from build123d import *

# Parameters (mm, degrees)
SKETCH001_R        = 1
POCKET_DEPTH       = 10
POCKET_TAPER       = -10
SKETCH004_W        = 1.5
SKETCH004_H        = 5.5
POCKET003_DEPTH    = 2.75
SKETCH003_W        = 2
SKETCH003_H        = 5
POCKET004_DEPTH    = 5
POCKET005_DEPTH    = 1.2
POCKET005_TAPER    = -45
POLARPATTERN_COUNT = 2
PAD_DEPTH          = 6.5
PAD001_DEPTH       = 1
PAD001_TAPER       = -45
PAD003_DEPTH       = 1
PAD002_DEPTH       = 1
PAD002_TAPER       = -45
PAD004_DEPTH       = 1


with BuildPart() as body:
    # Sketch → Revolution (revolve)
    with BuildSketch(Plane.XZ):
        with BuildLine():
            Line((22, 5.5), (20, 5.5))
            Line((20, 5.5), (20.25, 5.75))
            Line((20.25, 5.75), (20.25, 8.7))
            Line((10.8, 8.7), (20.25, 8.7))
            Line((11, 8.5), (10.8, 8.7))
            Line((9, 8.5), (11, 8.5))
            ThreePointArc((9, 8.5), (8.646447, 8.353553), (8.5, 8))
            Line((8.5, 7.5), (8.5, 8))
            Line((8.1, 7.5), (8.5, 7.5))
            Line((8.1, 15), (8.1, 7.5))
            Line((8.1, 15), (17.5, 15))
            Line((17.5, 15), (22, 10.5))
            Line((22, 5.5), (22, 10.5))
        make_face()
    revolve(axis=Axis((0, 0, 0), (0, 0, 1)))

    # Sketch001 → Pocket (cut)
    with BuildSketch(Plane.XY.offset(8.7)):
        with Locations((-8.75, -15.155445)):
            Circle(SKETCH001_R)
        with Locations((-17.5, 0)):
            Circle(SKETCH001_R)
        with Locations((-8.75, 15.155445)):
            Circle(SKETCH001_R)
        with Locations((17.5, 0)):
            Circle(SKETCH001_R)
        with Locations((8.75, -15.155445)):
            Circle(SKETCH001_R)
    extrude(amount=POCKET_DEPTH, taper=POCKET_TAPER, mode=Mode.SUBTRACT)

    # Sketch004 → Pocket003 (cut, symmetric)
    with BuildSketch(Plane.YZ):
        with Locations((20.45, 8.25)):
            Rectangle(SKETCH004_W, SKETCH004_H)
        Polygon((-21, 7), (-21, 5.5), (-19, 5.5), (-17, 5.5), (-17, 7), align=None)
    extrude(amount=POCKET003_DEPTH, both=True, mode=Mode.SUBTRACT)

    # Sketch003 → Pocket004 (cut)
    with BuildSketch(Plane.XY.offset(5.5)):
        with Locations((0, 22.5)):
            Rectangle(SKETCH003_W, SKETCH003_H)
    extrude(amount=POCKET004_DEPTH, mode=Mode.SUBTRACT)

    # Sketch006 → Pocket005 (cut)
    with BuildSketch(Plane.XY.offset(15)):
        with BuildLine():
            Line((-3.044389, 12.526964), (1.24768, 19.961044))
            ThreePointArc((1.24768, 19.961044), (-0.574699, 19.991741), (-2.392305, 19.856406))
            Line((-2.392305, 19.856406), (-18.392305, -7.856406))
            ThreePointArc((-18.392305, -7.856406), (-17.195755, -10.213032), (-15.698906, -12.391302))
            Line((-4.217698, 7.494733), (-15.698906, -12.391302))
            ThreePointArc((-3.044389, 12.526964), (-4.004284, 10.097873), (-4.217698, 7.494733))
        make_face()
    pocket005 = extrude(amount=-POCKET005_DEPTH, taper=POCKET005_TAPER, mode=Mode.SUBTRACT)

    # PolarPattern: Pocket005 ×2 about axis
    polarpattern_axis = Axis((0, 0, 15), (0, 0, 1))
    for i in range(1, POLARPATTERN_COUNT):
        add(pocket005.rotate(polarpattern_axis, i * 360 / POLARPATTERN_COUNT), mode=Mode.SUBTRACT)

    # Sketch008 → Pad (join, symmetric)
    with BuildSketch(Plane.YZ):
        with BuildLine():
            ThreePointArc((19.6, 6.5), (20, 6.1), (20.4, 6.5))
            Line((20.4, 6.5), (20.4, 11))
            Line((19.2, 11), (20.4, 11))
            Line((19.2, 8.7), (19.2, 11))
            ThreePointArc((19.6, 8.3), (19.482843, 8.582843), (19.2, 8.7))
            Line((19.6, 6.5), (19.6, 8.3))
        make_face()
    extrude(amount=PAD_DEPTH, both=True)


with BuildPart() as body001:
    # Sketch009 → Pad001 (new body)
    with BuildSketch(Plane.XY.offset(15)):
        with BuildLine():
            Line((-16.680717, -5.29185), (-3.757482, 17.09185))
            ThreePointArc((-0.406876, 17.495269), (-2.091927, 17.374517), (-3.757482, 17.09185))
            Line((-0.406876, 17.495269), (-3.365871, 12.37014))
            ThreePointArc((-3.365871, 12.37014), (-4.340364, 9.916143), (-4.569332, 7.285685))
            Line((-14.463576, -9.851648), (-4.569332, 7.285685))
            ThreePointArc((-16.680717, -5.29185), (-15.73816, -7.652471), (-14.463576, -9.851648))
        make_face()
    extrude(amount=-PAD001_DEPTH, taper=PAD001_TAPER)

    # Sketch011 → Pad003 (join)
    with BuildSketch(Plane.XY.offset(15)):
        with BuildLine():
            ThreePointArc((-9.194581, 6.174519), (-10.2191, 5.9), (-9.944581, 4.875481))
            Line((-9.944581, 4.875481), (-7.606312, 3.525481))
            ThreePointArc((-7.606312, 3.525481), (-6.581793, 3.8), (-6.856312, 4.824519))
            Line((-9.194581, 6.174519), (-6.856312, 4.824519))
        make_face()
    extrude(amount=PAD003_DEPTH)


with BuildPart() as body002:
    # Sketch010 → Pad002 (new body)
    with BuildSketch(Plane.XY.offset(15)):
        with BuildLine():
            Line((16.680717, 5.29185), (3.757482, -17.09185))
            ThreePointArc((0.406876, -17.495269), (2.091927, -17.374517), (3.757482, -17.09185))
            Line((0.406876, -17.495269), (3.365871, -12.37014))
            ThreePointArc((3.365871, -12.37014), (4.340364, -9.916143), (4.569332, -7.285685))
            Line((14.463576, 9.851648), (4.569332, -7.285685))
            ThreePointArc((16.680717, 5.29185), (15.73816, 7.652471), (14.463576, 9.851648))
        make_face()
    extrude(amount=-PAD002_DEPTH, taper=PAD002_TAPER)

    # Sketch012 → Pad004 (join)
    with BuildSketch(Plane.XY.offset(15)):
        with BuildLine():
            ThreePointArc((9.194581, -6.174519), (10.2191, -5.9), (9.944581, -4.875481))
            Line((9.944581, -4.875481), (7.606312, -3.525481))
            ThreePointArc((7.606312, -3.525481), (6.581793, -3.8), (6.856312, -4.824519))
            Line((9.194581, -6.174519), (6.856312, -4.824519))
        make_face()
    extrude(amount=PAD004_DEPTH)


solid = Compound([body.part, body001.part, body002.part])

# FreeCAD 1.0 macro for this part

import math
import FreeCAD as App
import Part
import Sketcher
from FreeCAD import Vector
Q = App.Units.Quantity


def add_polygon(sketch, points):
    """Adds a closed chain of lines whose ends are joined by coincident constraints."""
    first, n = sketch.GeometryCount, len(points)
    for a, b in zip(points, points[1:] + points[:1]):
        sketch.addGeometry(Part.LineSegment(App.Vector(*a, 0), App.Vector(*b, 0)), False)
    for i in range(n):
        sketch.addConstraint(Sketcher.Constraint("Coincident", first + i, 2, first + (i + 1) % n, 1))

doc = App.newDocument("Part")
body = doc.addObject("PartDesign::Body", "Body")

sketch1 = doc.addObject("Sketcher::SketchObject", "Sketch")
body.addObject(sketch1)
sketch1.AttachmentSupport = (doc.XZ_Plane, [""])
sketch1.MapMode = "FlatFace"
sketch1.addGeometry([
    Part.LineSegment(Vector(20, 5.5, 0), Vector(22, 5.5, 0)),
    Part.LineSegment(Vector(22, 5.5, 0), Vector(22, 10.5, 0)),
    Part.LineSegment(Vector(22, 10.5, 0), Vector(17.5, 15, 0)),
    Part.LineSegment(Vector(17.5, 15, 0), Vector(8.1, 15, 0)),
    Part.LineSegment(Vector(8.1, 15, 0), Vector(8.1, 7.5, 0)),
    Part.LineSegment(Vector(8.1, 7.5, 0), Vector(8.5, 7.5, 0)),
    Part.LineSegment(Vector(8.5, 7.5, 0), Vector(8.5, 8, 0)),
    Part.ArcOfCircle(Part.Circle(Vector(9, 8, 0), Vector(0, 0, 1), 0.5), math.radians(90), math.radians(180)),
    Part.LineSegment(Vector(9, 8.5, 0), Vector(11, 8.5, 0)),
    Part.LineSegment(Vector(11, 8.5, 0), Vector(10.8, 8.7, 0)),
    Part.LineSegment(Vector(10.8, 8.7, 0), Vector(20.25, 8.7, 0)),
    Part.LineSegment(Vector(20.25, 8.7, 0), Vector(20.25, 5.75, 0)),
    Part.LineSegment(Vector(20.25, 5.75, 0), Vector(20, 5.5, 0)),
], False)
sketch1.addConstraint([
    Sketcher.Constraint("Coincident", 0, 2, 1, 1),
    Sketcher.Constraint("Coincident", 1, 2, 2, 1),
    Sketcher.Constraint("Coincident", 2, 2, 3, 1),
    Sketcher.Constraint("Coincident", 3, 2, 4, 1),
    Sketcher.Constraint("Coincident", 4, 2, 5, 1),
    Sketcher.Constraint("Coincident", 5, 2, 6, 1),
    Sketcher.Constraint("Coincident", 6, 2, 7, 2),
    Sketcher.Constraint("Coincident", 7, 1, 8, 1),
    Sketcher.Constraint("Coincident", 8, 2, 9, 1),
    Sketcher.Constraint("Coincident", 9, 2, 10, 1),
    Sketcher.Constraint("Coincident", 10, 2, 11, 1),
    Sketcher.Constraint("Coincident", 11, 2, 12, 1),
    Sketcher.Constraint("Coincident", 12, 2, 0, 1),
    Sketcher.Constraint("Horizontal", 0),
    Sketcher.Constraint("Vertical", 1),
    Sketcher.Constraint("Horizontal", 3),
    Sketcher.Constraint("Vertical", 4),
    Sketcher.Constraint("Horizontal", 5),
    Sketcher.Constraint("Vertical", 6),
    Sketcher.Constraint("Horizontal", 8),
    Sketcher.Constraint("Horizontal", 10),
    Sketcher.Constraint("Vertical", 11),
    Sketcher.Constraint("Parallel", 2, 9),
    Sketcher.Constraint("Perpendicular", 9, 12),
    Sketcher.Constraint("Horizontal", 7, 3, 6, 2),
    Sketcher.Constraint("Equal", 0, 8),
    Sketcher.Constraint("Radius", 7, Q("0.500001 mm")),
    Sketcher.Constraint("DistanceX", 0, 1, 0, 2, Q("2 mm")),
    Sketcher.Constraint("DistanceY", 1, 1, 1, 2, Q("5 mm")),
    Sketcher.Constraint("Angle", 2, Q("135 deg")),
    Sketcher.Constraint("DistanceX", 3, 2, 3, 1, Q("9.4 mm")),
    Sketcher.Constraint("DistanceX", 5, 1, 5, 2, Q("0.4 mm")),
    Sketcher.Constraint("DistanceY", 4, 2, 4, 1, Q("7.5 mm")),
    Sketcher.Constraint("DistanceY", 6, 1, 6, 2, Q("0.5 mm")),
    Sketcher.Constraint("DistanceX", -1, 1, 7, 3, Q("9.000001 mm")),
    Sketcher.Constraint("DistanceY", -1, 1, 7, 3, Q("7.999999 mm")),
    Sketcher.Constraint("DistanceX", -1, 1, 0, 2, Q("22 mm")),
    Sketcher.Constraint("DistanceX", -1, 1, 7, 1, Q("9 mm")),
    Sketcher.Constraint("DistanceX", 10, 1, 10, 2, Q("9.45 mm")),
    Sketcher.Constraint("DistanceY", 11, 2, 11, 1, Q("2.95 mm")),
])
revolution = doc.addObject("PartDesign::Revolution", "Revolution")
body.addObject(revolution)
revolution.Profile = sketch1
revolution.ReferenceAxis = (sketch1, ["V_Axis"])
revolution.Angle = 360

sketch2 = doc.addObject("Sketcher::SketchObject", "Sketch001")
body.addObject(sketch2)
sketch2.AttachmentSupport = (doc.XY_Plane, [""])
sketch2.MapMode = "FlatFace"
sketch2.AttachmentOffset = App.Placement(Vector(0, 0, 8.7), App.Rotation())
sketch2.addGeometry([
    Part.Circle(Vector(-8.8, -15.2, 0), Vector(0, 0, 1), 1),
    Part.Circle(Vector(-17.5, 0, 0), Vector(0, 0, 1), 1),
    Part.Circle(Vector(-8.8, 15.2, 0), Vector(0, 0, 1), 1),
    Part.Circle(Vector(17.5, 0, 0), Vector(0, 0, 1), 1),
    Part.Circle(Vector(8.8, -15.2, 0), Vector(0, 0, 1), 1),
], False)
sketch2.addConstraint([
    Sketcher.Constraint("Equal", 0, 1),
    Sketcher.Constraint("Equal", 1, 2),
    Sketcher.Constraint("Equal", 2, 3),
    Sketcher.Constraint("Equal", 3, 4),
    Sketcher.Constraint("Symmetric", 1, 3, 3, 3, -1, 1),
    Sketcher.Constraint("Symmetric", 2, 3, 4, 3, -1, 1),
    Sketcher.Constraint("Symmetric", 0, 3, 4, 3, -2),
    Sketcher.Constraint("PointOnObject", 1, 3, -1),
    Sketcher.Constraint("Diameter", 0, Q("2 mm")),
    Sketcher.Constraint("DistanceX", 1, 3, 3, 3, Q("35 mm")),
    Sketcher.Constraint("DistanceX", 0, 3, 4, 3, Q("17.5 mm")),
    Sketcher.Constraint("DistanceY", 0, 3, 2, 3, Q("30.31089 mm")),
])
pocket1 = doc.addObject("PartDesign::Pocket", "Pocket")
body.addObject(pocket1)
pocket1.Profile = sketch2
pocket1.Length = 10
pocket1.Reversed = True
pocket1.TaperAngle = 10

sketch3 = doc.addObject("Sketcher::SketchObject", "Sketch002")
body.addObject(sketch3)
sketch3.AttachmentSupport = (doc.YZ_Plane, [""])
sketch3.MapMode = "FlatFace"
add_polygon(sketch3, [(19.7, 11), (19.7, 5.5), (21.2, 5.5), (21.2, 11)])
add_polygon(sketch3, [(-21, 7), (-21, 5.5), (-17, 5.5), (-17, 7)])
sketch3.addConstraint([
    Sketcher.Constraint("Vertical", 0),
    Sketcher.Constraint("Horizontal", 1),
    Sketcher.Constraint("Vertical", 2),
    Sketcher.Constraint("Horizontal", 3),
    Sketcher.Constraint("Vertical", 4),
    Sketcher.Constraint("Horizontal", 5),
    Sketcher.Constraint("Vertical", 6),
    Sketcher.Constraint("Horizontal", 7),
    Sketcher.Constraint("Horizontal", 1, 2, 4, 2),
    Sketcher.Constraint("Equal", 3, 4),
    Sketcher.Constraint("DistanceX", 5, 1, 5, 2, Q("4 mm")),
    Sketcher.Constraint("DistanceX", 1, 1, 1, 2, Q("1.5 mm")),
    Sketcher.Constraint("DistanceY", 0, 2, 0, 1, Q("5.5 mm")),
    Sketcher.Constraint("DistanceY", -1, 1, 2, 2, Q("11 mm")),
    Sketcher.Constraint("DistanceX", 4, 2, -1, 1, Q("21 mm")),
    Sketcher.Constraint("DistanceX", -1, 1, 0, 2, Q("19.7 mm")),
])
pocket2 = doc.addObject("PartDesign::Pocket", "Pocket001")
body.addObject(pocket2)
pocket2.Profile = sketch3
pocket2.Length = 5.5
pocket2.Midplane = True

sketch4 = doc.addObject("Sketcher::SketchObject", "Sketch003")
body.addObject(sketch4)
sketch4.AttachmentSupport = (doc.XY_Plane, [""])
sketch4.MapMode = "FlatFace"
sketch4.AttachmentOffset = App.Placement(Vector(0, 0, 5.5), App.Rotation())
add_polygon(sketch4, [(-1, 25), (-1, 20), (1, 20), (1, 25)])
sketch4.addConstraint([
    Sketcher.Constraint("Vertical", 0),
    Sketcher.Constraint("Horizontal", 1),
    Sketcher.Constraint("Vertical", 2),
    Sketcher.Constraint("Horizontal", 3),
    Sketcher.Constraint("DistanceX", 1, 1, 1, 2, Q("2 mm")),
    Sketcher.Constraint("DistanceY", 0, 2, 0, 1, Q("5 mm")),
    Sketcher.Constraint("DistanceX", 0, 2, -1, 1, Q("1 mm")),
    Sketcher.Constraint("DistanceY", -1, 1, 0, 2, Q("20 mm")),
])
pocket3 = doc.addObject("PartDesign::Pocket", "Pocket002")
body.addObject(pocket3)
pocket3.Profile = sketch4
pocket3.Length = 5
pocket3.Reversed = True

sketch5 = doc.addObject("Sketcher::SketchObject", "Sketch004")
body.addObject(sketch5)
sketch5.AttachmentSupport = (doc.XY_Plane, [""])
sketch5.MapMode = "FlatFace"
sketch5.AttachmentOffset = App.Placement(Vector(0, 0, 15), App.Rotation())
sketch5.addGeometry([
    Part.LineSegment(Vector(-3.044389, 12.526964, 0), Vector(1.24768, 19.961044, 0)),
    Part.ArcOfCircle(Part.Circle(Vector(-0.000001, 0.000027, 0), Vector(0, 0, 1), 19.999973), math.radians(86.423331), math.radians(96.869905)),
    Part.LineSegment(Vector(-2.392305, 19.856406, 0), Vector(-18.392305, -7.856406, 0)),
    Part.ArcOfCircle(Part.Circle(Vector(-0.000014, -0.00001, 0), Vector(0, 0, 1), 19.999983), math.radians(-156.86991), math.radians(-141.715616)),
    Part.LineSegment(Vector(-15.698906, -12.391302, 0), Vector(-4.217698, 7.494733, 0)),
    Part.ArcOfCircle(Part.Circle(Vector(4.663244, 8.076962, 0), Vector(0, 0, 1), 8.900007), math.radians(150.000013), math.radians(183.75091)),
], False)
sketch5.addConstraint([
    Sketcher.Constraint("Coincident", 0, 2, 1, 1),
    Sketcher.Constraint("Coincident", 1, 2, 2, 1),
    Sketcher.Constraint("Coincident", 2, 2, 3, 1),
    Sketcher.Constraint("Coincident", 3, 2, 4, 1),
    Sketcher.Constraint("Coincident", 4, 2, 5, 2),
    Sketcher.Constraint("Coincident", 5, 1, 0, 1),
    Sketcher.Constraint("PointOnObject", 1, 3, -2),
    Sketcher.Constraint("Distance", 2, Q("31.999999 mm")),
    Sketcher.Constraint("DistanceX", 2, 2, 1, 2, Q("16 mm")),
    Sketcher.Constraint("DistanceY", 5, 3, 5, 1, Q("4.450002 mm")),
    Sketcher.Constraint("Radius", 1, Q("19.999973 mm")),
    Sketcher.Constraint("Radius", 3, Q("19.999983 mm")),
    Sketcher.Constraint("Radius", 5, Q("8.900007 mm")),
    Sketcher.Constraint("DistanceX", 4, 2, -1, 1, Q("4.217698 mm")),
    Sketcher.Constraint("DistanceX", 2, 2, 3, 2, Q("2.693399 mm")),
    Sketcher.Constraint("DistanceX", -1, 1, 0, 2, Q("1.24768 mm")),
    Sketcher.Constraint("DistanceX", 5, 1, -1, 1, Q("3.044389 mm")),
    Sketcher.Constraint("DistanceY", 5, 3, 0, 2, Q("11.884082 mm")),
    Sketcher.Constraint("DistanceY", 1, 2, 0, 2, Q("0.104638 mm")),
    Sketcher.Constraint("DistanceX", 1, 2, 3, 3, Q("2.392291 mm")),
    Sketcher.Constraint("DistanceY", -1, 1, 5, 3, Q("8.076962 mm")),
])
pocket4 = doc.addObject("PartDesign::Pocket", "Pocket003")
body.addObject(pocket4)
pocket4.Profile = sketch5
pocket4.Length = 1.2
pocket4.TaperAngle = 45
doc.recompute()

polarpattern = doc.addObject("PartDesign::PolarPattern", "PolarPattern")
body.addObject(polarpattern)
polarpattern.Originals = [pocket4]
polarpattern.Axis = (doc.Z_Axis, [""])
polarpattern.Angle = 360
polarpattern.Occurrences = 2
body.Tip = polarpattern

sketch6 = doc.addObject("Sketcher::SketchObject", "Sketch005")
body.addObject(sketch6)
sketch6.AttachmentSupport = (doc.YZ_Plane, [""])
sketch6.MapMode = "FlatFace"
sketch6.addGeometry([
    Part.ArcOfCircle(Part.Circle(Vector(20, 6.5, 0), Vector(0, 0, 1), 0.4), math.radians(180), math.radians(360)),
    Part.LineSegment(Vector(20.4, 6.5, 0), Vector(20.4, 11, 0)),
    Part.LineSegment(Vector(20.4, 11, 0), Vector(19.2, 11, 0)),
    Part.LineSegment(Vector(19.2, 11, 0), Vector(19.2, 8.7, 0)),
    Part.ArcOfCircle(Part.Circle(Vector(19.2, 8.3, 0), Vector(0, 0, 1), 0.4), math.radians(0), math.radians(90)),
    Part.LineSegment(Vector(19.6, 8.3, 0), Vector(19.6, 6.5, 0)),
], False)
sketch6.addConstraint([
    Sketcher.Constraint("Tangent", 0, 2, 1, 1),
    Sketcher.Constraint("Coincident", 1, 2, 2, 1),
    Sketcher.Constraint("Coincident", 2, 2, 3, 1),
    Sketcher.Constraint("Coincident", 3, 2, 4, 2),
    Sketcher.Constraint("Coincident", 4, 1, 5, 1),
    Sketcher.Constraint("Tangent", 5, 2, 0, 1),
    Sketcher.Constraint("Vertical", 1),
    Sketcher.Constraint("Horizontal", 2),
    Sketcher.Constraint("Vertical", 3),
    Sketcher.Constraint("Vertical", 5),
    Sketcher.Constraint("Equal", 0, 4),
    Sketcher.Constraint("Vertical", 4, 3, 2, 2),
    Sketcher.Constraint("Radius", 0, Q("0.4 mm")),
    Sketcher.Constraint("DistanceY", 1, 1, 1, 2, Q("4.5 mm")),
    Sketcher.Constraint("DistanceY", 3, 2, 3, 1, Q("2.3 mm")),
    Sketcher.Constraint("DistanceY", 5, 2, 5, 1, Q("1.8 mm")),
    Sketcher.Constraint("DistanceX", -1, 1, 0, 3, Q("20 mm")),
    Sketcher.Constraint("DistanceY", -1, 1, 1, 2, Q("11 mm")),
])
pad1 = doc.addObject("PartDesign::Pad", "Pad")
body.addObject(pad1)
pad1.Profile = sketch6
pad1.Length = 13
pad1.Midplane = True
body2 = doc.addObject("PartDesign::Body", "Body001")

sketch7 = doc.addObject("Sketcher::SketchObject", "Sketch006")
body2.addObject(sketch7)
sketch7.AttachmentSupport = (doc.getObject("XY_Plane001"), [""])
sketch7.MapMode = "FlatFace"
sketch7.AttachmentOffset = App.Placement(Vector(0, 0, 15), App.Rotation())
sketch7.addGeometry([
    Part.LineSegment(Vector(-3.8, 17.1, 0), Vector(-16.7, -5.3, 0)),
    Part.ArcOfCircle(Part.Circle(Vector(0, 0, 0), Vector(0, 0, 1), 17.5), math.radians(-162.4), math.radians(-145.74)),
    Part.LineSegment(Vector(-14.5, -9.9, 0), Vector(-4.6, 7.3, 0)),
    Part.ArcOfCircle(Part.Circle(Vector(4.5, 7.8, 0), Vector(0, 0, 1), 9.1), math.radians(150), math.radians(183)),
    Part.LineSegment(Vector(-3.4, 12.4, 0), Vector(-0.4, 17.5, 0)),
    Part.ArcOfCircle(Part.Circle(Vector(0, 0, 0), Vector(0, 0, 1), 17.5), math.radians(91.33), math.radians(102.4)),
], False)
sketch7.addConstraint([
    Sketcher.Constraint("Coincident", 0, 2, 1, 1),
    Sketcher.Constraint("Coincident", 1, 2, 2, 1),
    Sketcher.Constraint("Coincident", 2, 2, 3, 2),
    Sketcher.Constraint("Tangent", 3, 1, 4, 1),
    Sketcher.Constraint("Coincident", 4, 2, 5, 1),
    Sketcher.Constraint("Coincident", 5, 2, 0, 1),
    Sketcher.Constraint("Parallel", 0, 2),
    Sketcher.Constraint("Parallel", 2, 4),
    Sketcher.Constraint("Angle", 0, Q("-120 deg")),
    Sketcher.Constraint("Radius", 3, Q("9.100011 mm")),
    Sketcher.Constraint("Radius", 5, Q("17.499981 mm")),
    Sketcher.Constraint("Radius", 1, Q("17.500013 mm")),
    Sketcher.Constraint("DistanceY", 1, 2, 0, 2, Q("4.559798 mm")),
    Sketcher.Constraint("Distance", 0, Q("25.84647 mm")),
    Sketcher.Constraint("Distance", 4, Q("5.917989 mm")),
    Sketcher.Constraint("DistanceX", -1, 1, 3, 3, Q("4.514971 mm")),
    Sketcher.Constraint("DistanceY", 0, 2, -1, 1, Q("5.29185 mm")),
    Sketcher.Constraint("DistanceY", -1, 1, 3, 1, Q("12.37014 mm")),
    Sketcher.Constraint("DistanceX", 1, 3, 3, 3, Q("4.514959 mm")),
    Sketcher.Constraint("DistanceY", 1, 3, 3, 3, Q("7.820131 mm")),
])
pad2 = doc.addObject("PartDesign::Pad", "Pad001")
body2.addObject(pad2)
pad2.Profile = sketch7
pad2.Length = 1
pad2.Reversed = True
pad2.TaperAngle = 45

sketch8 = doc.addObject("Sketcher::SketchObject", "Sketch007")
body2.addObject(sketch8)
sketch8.AttachmentSupport = (doc.getObject("XY_Plane001"), [""])
sketch8.MapMode = "FlatFace"
sketch8.AttachmentOffset = App.Placement(Vector(0, 0, 15), App.Rotation())
sketch8.addGeometry([
    Part.ArcOfCircle(Part.Circle(Vector(-9.6, 5.5, 0), Vector(0, 0, 1), 0.7), math.radians(60), math.radians(240)),
    Part.LineSegment(Vector(-9.9, 4.9, 0), Vector(-7.6, 3.5, 0)),
    Part.ArcOfCircle(Part.Circle(Vector(-7.2, 4.2, 0), Vector(0, 0, 1), 0.7), math.radians(-120), math.radians(60)),
    Part.LineSegment(Vector(-6.9, 4.8, 0), Vector(-9.2, 6.2, 0)),
], False)
sketch8.addConstraint([
    Sketcher.Constraint("Tangent", 0, 2, 1, 1),
    Sketcher.Constraint("Tangent", 1, 2, 2, 1),
    Sketcher.Constraint("Tangent", 2, 2, 3, 1),
    Sketcher.Constraint("Tangent", 3, 2, 0, 1),
    Sketcher.Constraint("Equal", 0, 2),
    Sketcher.Constraint("Angle", 1, Q("-29.999996 deg")),
    Sketcher.Constraint("Radius", 0, Q("0.75 mm")),
    Sketcher.Constraint("Distance", 1, Q("2.7 mm")),
    Sketcher.Constraint("DistanceY", -1, 1, 0, 3, Q("5.525 mm")),
    Sketcher.Constraint("DistanceX", 0, 3, -1, 1, Q("9.569581 mm")),
])
pad3 = doc.addObject("PartDesign::Pad", "Pad002")
body2.addObject(pad3)
pad3.Profile = sketch8
pad3.Length = 1
body3 = doc.addObject("PartDesign::Body", "Body002")

sketch9 = doc.addObject("Sketcher::SketchObject", "Sketch008")
body3.addObject(sketch9)
sketch9.AttachmentSupport = (doc.getObject("XY_Plane002"), [""])
sketch9.MapMode = "FlatFace"
sketch9.AttachmentOffset = App.Placement(Vector(0, 0, 15), App.Rotation())
sketch9.addGeometry([
    Part.LineSegment(Vector(3.8, -17.1, 0), Vector(16.7, 5.3, 0)),
    Part.ArcOfCircle(Part.Circle(Vector(0, 0, 0), Vector(0, 0, 1), 17.5), math.radians(17.6), math.radians(34.26)),
    Part.LineSegment(Vector(14.5, 9.9, 0), Vector(4.6, -7.3, 0)),
    Part.ArcOfCircle(Part.Circle(Vector(-4.5, -7.8, 0), Vector(0, 0, 1), 9.1), math.radians(-30), math.radians(3)),
    Part.LineSegment(Vector(3.4, -12.4, 0), Vector(0.4, -17.5, 0)),
    Part.ArcOfCircle(Part.Circle(Vector(0, 0, 0), Vector(0, 0, 1), 17.5), math.radians(-88.67), math.radians(-77.6)),
], False)
sketch9.addConstraint([
    Sketcher.Constraint("Coincident", 0, 2, 1, 1),
    Sketcher.Constraint("Coincident", 1, 2, 2, 1),
    Sketcher.Constraint("Coincident", 2, 2, 3, 2),
    Sketcher.Constraint("Tangent", 3, 1, 4, 1),
    Sketcher.Constraint("Coincident", 4, 2, 5, 1),
    Sketcher.Constraint("Coincident", 5, 2, 0, 1),
    Sketcher.Constraint("Parallel", 0, 2),
    Sketcher.Constraint("Parallel", 2, 4),
    Sketcher.Constraint("Angle", 0, Q("60 deg")),
    Sketcher.Constraint("Radius", 3, Q("9.100011 mm")),
    Sketcher.Constraint("Radius", 5, Q("17.499981 mm")),
    Sketcher.Constraint("Radius", 1, Q("17.500013 mm")),
    Sketcher.Constraint("DistanceY", 0, 2, 1, 2, Q("4.559798 mm")),
    Sketcher.Constraint("Distance", 0, Q("25.84647 mm")),
    Sketcher.Constraint("Distance", 4, Q("5.917989 mm")),
    Sketcher.Constraint("DistanceX", 3, 3, -1, 1, Q("4.514971 mm")),
    Sketcher.Constraint("DistanceY", -1, 1, 0, 2, Q("5.29185 mm")),
    Sketcher.Constraint("DistanceY", 3, 1, -1, 1, Q("12.37014 mm")),
    Sketcher.Constraint("DistanceX", 3, 3, 1, 3, Q("4.514959 mm")),
    Sketcher.Constraint("DistanceY", 3, 3, 1, 3, Q("7.820131 mm")),
])
pad4 = doc.addObject("PartDesign::Pad", "Pad003")
body3.addObject(pad4)
pad4.Profile = sketch9
pad4.Length = 1
pad4.Reversed = True
pad4.TaperAngle = 45

sketch10 = doc.addObject("Sketcher::SketchObject", "Sketch009")
body3.addObject(sketch10)
sketch10.AttachmentSupport = (doc.getObject("XY_Plane002"), [""])
sketch10.MapMode = "FlatFace"
sketch10.AttachmentOffset = App.Placement(Vector(0, 0, 15), App.Rotation())
sketch10.addGeometry([
    Part.ArcOfCircle(Part.Circle(Vector(9.6, -5.5, 0), Vector(0, 0, 1), 0.7), math.radians(-120), math.radians(60)),
    Part.LineSegment(Vector(9.9, -4.9, 0), Vector(7.6, -3.5, 0)),
    Part.ArcOfCircle(Part.Circle(Vector(7.2, -4.2, 0), Vector(0, 0, 1), 0.7), math.radians(60), math.radians(240)),
    Part.LineSegment(Vector(6.9, -4.8, 0), Vector(9.2, -6.2, 0)),
], False)
sketch10.addConstraint([
    Sketcher.Constraint("Tangent", 0, 2, 1, 1),
    Sketcher.Constraint("Tangent", 1, 2, 2, 1),
    Sketcher.Constraint("Tangent", 2, 2, 3, 1),
    Sketcher.Constraint("Tangent", 3, 2, 0, 1),
    Sketcher.Constraint("Equal", 0, 2),
    Sketcher.Constraint("Angle", 1, Q("150.000004 deg")),
    Sketcher.Constraint("Radius", 0, Q("0.75 mm")),
    Sketcher.Constraint("Distance", 1, Q("2.7 mm")),
    Sketcher.Constraint("DistanceY", 0, 3, -1, 1, Q("5.525 mm")),
    Sketcher.Constraint("DistanceX", -1, 1, 0, 3, Q("9.569581 mm")),
])
pad5 = doc.addObject("PartDesign::Pad", "Pad004")
body3.addObject(pad5)
pad5.Profile = sketch10
pad5.Length = 1

doc.recompute()
